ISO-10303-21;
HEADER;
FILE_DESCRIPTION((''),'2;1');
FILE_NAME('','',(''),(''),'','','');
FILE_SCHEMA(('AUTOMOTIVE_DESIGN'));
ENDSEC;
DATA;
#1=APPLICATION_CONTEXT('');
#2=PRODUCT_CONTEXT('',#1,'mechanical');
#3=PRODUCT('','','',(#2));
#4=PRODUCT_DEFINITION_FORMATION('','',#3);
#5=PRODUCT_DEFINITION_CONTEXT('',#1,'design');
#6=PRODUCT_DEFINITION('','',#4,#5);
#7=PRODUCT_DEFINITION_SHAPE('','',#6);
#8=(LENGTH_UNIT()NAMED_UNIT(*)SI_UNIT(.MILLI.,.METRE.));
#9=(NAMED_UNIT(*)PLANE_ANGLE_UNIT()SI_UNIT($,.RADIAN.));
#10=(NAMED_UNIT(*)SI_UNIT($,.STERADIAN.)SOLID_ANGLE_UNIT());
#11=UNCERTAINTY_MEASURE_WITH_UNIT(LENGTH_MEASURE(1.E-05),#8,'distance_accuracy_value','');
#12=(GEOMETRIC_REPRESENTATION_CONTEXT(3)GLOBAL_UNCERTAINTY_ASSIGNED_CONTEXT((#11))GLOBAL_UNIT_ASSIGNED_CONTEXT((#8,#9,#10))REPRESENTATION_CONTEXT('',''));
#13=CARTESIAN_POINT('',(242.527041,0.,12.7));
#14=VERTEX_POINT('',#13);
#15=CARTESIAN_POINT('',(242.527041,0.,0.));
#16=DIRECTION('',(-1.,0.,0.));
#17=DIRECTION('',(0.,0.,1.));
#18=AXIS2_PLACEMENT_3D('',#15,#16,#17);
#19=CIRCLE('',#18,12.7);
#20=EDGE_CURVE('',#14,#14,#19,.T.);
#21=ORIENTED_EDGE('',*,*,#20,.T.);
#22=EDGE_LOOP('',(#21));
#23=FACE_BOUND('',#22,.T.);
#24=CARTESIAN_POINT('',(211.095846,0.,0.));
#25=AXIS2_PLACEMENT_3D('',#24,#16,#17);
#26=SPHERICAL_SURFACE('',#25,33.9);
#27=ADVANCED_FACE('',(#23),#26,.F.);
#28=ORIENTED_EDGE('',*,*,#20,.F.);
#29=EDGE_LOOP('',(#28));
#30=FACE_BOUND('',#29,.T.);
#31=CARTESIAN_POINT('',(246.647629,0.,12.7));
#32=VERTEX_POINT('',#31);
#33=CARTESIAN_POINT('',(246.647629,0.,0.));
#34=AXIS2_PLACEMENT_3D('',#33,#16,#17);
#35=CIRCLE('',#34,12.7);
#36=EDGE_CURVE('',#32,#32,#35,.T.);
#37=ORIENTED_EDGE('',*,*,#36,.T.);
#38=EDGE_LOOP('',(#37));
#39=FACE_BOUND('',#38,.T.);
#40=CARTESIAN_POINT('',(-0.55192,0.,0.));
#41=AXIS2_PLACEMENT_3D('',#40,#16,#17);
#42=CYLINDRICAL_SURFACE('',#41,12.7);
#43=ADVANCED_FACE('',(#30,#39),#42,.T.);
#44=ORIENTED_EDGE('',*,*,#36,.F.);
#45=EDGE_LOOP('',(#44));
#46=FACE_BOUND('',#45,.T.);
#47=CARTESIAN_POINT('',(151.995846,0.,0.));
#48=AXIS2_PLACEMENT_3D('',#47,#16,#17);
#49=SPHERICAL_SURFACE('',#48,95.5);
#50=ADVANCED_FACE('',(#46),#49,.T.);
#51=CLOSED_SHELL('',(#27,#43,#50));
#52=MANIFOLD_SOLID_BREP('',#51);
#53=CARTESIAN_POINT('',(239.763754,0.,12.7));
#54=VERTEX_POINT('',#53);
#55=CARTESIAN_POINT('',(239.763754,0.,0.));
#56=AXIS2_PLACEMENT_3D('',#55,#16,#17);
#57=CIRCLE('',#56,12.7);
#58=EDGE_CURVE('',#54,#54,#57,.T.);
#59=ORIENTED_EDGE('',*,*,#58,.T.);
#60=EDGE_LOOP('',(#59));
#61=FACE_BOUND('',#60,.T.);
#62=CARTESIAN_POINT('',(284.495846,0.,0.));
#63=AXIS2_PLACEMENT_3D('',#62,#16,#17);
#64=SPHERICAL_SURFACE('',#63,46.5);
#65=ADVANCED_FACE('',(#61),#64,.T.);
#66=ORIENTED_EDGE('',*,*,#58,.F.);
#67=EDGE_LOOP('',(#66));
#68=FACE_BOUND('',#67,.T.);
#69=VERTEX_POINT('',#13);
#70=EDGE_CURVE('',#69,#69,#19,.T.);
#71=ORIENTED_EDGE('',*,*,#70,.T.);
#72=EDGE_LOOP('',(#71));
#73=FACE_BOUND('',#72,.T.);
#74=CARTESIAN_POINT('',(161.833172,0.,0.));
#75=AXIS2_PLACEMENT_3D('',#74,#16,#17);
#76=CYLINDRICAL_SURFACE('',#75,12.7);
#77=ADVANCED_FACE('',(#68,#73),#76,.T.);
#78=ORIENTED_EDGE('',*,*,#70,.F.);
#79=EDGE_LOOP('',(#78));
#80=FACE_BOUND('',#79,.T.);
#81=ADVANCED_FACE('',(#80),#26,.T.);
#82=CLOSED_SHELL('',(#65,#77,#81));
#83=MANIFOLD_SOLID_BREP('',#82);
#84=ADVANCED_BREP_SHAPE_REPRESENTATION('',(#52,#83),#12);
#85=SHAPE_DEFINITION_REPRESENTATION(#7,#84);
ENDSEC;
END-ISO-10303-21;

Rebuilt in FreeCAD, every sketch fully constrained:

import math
import FreeCAD as App
import Part
import Sketcher
from FreeCAD import Vector

doc = App.newDocument("Part")
body = doc.addObject("PartDesign::Body", "Body")

# Sketch on XZ plane
sketch1 = body.newObject("Sketcher::SketchObject", "Sketch")
sketch1.AttachmentSupport = (doc.getObject("XZ_Plane"), [""])
sketch1.MapMode = "FlatFace"
sketch1.addGeometry([
    Part.ArcOfCircle(Part.Circle(Vector(284.5, 0, 0), Vector(0, 0, 1), 46.5), math.radians(180), math.radians(195.85)),
    Part.LineSegment(Vector(238, 0, 0), Vector(245, 0, 0)),
    Part.ArcOfCircle(Part.Circle(Vector(211.1, 0, 0), Vector(0, 0, 1), 33.9), math.radians(-22), math.radians(0)),
    Part.LineSegment(Vector(242.5, -12.7, 0), Vector(239.8, -12.7, 0)),
], False)
sketch1.addConstraint([
    Sketcher.Constraint("Coincident", 0, 1, 1, 1),
    Sketcher.Constraint("Coincident", 1, 2, 2, 2),
    Sketcher.Constraint("Coincident", 2, 1, 3, 1),
    Sketcher.Constraint("Coincident", 3, 2, 0, 2),
    Sketcher.Constraint("Horizontal", 1),
    Sketcher.Constraint("Horizontal", 3),
    Sketcher.Constraint("PointOnObject", 0, 3, -1),
    Sketcher.Constraint("PointOnObject", 2, 3, -1),
    Sketcher.Constraint("PointOnObject", 0, 1, -1),
    Sketcher.Constraint("Radius", 0, 46.5),
    Sketcher.Constraint("Radius", 2, 33.9),
    Sketcher.Constraint("DistanceX", 1, 1, 1, 2, 7.0),
    Sketcher.Constraint("DistanceY", 2, 1, -1, 1, 12.7),
    Sketcher.Constraint("DistanceX", -1, 1, 2, 1, 242.527041),
])
revolution = body.newObject("PartDesign::Revolution", "Revolution")
revolution.Profile = sketch1
revolution.ReferenceAxis = (sketch1, ["H_Axis"])
revolution.Angle = 360
body2 = doc.addObject("PartDesign::Body", "Body001")

# Sketch on XZ plane
sketch2 = body2.newObject("Sketcher::SketchObject", "Sketch001")
sketch2.AttachmentSupport = (doc.getObject("XZ_Plane001"), [""])
sketch2.MapMode = "FlatFace"
sketch2.addGeometry([
    Part.LineSegment(Vector(246.6, -12.7, 0), Vector(242.5, -12.7, 0)),
    Part.ArcOfCircle(Part.Circle(Vector(211.1, 0, 0), Vector(0, 0, 1), 33.9), math.radians(-22), math.radians(0)),
    Part.LineSegment(Vector(245, 0, 0), Vector(247.5, 0, 0)),
    Part.ArcOfCircle(Part.Circle(Vector(152, 0, 0), Vector(0, 0, 1), 95.5), math.radians(-7.64), math.radians(0)),
], False)
sketch2.addConstraint([
    Sketcher.Constraint("Coincident", 0, 2, 1, 1),
    Sketcher.Constraint("Coincident", 1, 2, 2, 1),
    Sketcher.Constraint("Coincident", 2, 2, 3, 2),
    Sketcher.Constraint("Coincident", 3, 1, 0, 1),
    Sketcher.Constraint("Horizontal", 0),
    Sketcher.Constraint("Horizontal", 2),
    Sketcher.Constraint("PointOnObject", 1, 3, -1),
    Sketcher.Constraint("PointOnObject", 3, 3, -1),
    Sketcher.Constraint("PointOnObject", 1, 2, -1),
    Sketcher.Constraint("Radius", 1, 33.9),
    Sketcher.Constraint("Radius", 3, 95.5),
    Sketcher.Constraint("DistanceX", 2, 1, 2, 2, 2.5),
    Sketcher.Constraint("DistanceY", 0, 2, -1, 1, 12.7),
    Sketcher.Constraint("DistanceX", -1, 1, 0, 2, 242.527041),
])
revolution2 = body2.newObject("PartDesign::Revolution", "Revolution001")
revolution2.Profile = sketch2
revolution2.ReferenceAxis = (sketch2, ["H_Axis"])
revolution2.Angle = 360

doc.recompute()
